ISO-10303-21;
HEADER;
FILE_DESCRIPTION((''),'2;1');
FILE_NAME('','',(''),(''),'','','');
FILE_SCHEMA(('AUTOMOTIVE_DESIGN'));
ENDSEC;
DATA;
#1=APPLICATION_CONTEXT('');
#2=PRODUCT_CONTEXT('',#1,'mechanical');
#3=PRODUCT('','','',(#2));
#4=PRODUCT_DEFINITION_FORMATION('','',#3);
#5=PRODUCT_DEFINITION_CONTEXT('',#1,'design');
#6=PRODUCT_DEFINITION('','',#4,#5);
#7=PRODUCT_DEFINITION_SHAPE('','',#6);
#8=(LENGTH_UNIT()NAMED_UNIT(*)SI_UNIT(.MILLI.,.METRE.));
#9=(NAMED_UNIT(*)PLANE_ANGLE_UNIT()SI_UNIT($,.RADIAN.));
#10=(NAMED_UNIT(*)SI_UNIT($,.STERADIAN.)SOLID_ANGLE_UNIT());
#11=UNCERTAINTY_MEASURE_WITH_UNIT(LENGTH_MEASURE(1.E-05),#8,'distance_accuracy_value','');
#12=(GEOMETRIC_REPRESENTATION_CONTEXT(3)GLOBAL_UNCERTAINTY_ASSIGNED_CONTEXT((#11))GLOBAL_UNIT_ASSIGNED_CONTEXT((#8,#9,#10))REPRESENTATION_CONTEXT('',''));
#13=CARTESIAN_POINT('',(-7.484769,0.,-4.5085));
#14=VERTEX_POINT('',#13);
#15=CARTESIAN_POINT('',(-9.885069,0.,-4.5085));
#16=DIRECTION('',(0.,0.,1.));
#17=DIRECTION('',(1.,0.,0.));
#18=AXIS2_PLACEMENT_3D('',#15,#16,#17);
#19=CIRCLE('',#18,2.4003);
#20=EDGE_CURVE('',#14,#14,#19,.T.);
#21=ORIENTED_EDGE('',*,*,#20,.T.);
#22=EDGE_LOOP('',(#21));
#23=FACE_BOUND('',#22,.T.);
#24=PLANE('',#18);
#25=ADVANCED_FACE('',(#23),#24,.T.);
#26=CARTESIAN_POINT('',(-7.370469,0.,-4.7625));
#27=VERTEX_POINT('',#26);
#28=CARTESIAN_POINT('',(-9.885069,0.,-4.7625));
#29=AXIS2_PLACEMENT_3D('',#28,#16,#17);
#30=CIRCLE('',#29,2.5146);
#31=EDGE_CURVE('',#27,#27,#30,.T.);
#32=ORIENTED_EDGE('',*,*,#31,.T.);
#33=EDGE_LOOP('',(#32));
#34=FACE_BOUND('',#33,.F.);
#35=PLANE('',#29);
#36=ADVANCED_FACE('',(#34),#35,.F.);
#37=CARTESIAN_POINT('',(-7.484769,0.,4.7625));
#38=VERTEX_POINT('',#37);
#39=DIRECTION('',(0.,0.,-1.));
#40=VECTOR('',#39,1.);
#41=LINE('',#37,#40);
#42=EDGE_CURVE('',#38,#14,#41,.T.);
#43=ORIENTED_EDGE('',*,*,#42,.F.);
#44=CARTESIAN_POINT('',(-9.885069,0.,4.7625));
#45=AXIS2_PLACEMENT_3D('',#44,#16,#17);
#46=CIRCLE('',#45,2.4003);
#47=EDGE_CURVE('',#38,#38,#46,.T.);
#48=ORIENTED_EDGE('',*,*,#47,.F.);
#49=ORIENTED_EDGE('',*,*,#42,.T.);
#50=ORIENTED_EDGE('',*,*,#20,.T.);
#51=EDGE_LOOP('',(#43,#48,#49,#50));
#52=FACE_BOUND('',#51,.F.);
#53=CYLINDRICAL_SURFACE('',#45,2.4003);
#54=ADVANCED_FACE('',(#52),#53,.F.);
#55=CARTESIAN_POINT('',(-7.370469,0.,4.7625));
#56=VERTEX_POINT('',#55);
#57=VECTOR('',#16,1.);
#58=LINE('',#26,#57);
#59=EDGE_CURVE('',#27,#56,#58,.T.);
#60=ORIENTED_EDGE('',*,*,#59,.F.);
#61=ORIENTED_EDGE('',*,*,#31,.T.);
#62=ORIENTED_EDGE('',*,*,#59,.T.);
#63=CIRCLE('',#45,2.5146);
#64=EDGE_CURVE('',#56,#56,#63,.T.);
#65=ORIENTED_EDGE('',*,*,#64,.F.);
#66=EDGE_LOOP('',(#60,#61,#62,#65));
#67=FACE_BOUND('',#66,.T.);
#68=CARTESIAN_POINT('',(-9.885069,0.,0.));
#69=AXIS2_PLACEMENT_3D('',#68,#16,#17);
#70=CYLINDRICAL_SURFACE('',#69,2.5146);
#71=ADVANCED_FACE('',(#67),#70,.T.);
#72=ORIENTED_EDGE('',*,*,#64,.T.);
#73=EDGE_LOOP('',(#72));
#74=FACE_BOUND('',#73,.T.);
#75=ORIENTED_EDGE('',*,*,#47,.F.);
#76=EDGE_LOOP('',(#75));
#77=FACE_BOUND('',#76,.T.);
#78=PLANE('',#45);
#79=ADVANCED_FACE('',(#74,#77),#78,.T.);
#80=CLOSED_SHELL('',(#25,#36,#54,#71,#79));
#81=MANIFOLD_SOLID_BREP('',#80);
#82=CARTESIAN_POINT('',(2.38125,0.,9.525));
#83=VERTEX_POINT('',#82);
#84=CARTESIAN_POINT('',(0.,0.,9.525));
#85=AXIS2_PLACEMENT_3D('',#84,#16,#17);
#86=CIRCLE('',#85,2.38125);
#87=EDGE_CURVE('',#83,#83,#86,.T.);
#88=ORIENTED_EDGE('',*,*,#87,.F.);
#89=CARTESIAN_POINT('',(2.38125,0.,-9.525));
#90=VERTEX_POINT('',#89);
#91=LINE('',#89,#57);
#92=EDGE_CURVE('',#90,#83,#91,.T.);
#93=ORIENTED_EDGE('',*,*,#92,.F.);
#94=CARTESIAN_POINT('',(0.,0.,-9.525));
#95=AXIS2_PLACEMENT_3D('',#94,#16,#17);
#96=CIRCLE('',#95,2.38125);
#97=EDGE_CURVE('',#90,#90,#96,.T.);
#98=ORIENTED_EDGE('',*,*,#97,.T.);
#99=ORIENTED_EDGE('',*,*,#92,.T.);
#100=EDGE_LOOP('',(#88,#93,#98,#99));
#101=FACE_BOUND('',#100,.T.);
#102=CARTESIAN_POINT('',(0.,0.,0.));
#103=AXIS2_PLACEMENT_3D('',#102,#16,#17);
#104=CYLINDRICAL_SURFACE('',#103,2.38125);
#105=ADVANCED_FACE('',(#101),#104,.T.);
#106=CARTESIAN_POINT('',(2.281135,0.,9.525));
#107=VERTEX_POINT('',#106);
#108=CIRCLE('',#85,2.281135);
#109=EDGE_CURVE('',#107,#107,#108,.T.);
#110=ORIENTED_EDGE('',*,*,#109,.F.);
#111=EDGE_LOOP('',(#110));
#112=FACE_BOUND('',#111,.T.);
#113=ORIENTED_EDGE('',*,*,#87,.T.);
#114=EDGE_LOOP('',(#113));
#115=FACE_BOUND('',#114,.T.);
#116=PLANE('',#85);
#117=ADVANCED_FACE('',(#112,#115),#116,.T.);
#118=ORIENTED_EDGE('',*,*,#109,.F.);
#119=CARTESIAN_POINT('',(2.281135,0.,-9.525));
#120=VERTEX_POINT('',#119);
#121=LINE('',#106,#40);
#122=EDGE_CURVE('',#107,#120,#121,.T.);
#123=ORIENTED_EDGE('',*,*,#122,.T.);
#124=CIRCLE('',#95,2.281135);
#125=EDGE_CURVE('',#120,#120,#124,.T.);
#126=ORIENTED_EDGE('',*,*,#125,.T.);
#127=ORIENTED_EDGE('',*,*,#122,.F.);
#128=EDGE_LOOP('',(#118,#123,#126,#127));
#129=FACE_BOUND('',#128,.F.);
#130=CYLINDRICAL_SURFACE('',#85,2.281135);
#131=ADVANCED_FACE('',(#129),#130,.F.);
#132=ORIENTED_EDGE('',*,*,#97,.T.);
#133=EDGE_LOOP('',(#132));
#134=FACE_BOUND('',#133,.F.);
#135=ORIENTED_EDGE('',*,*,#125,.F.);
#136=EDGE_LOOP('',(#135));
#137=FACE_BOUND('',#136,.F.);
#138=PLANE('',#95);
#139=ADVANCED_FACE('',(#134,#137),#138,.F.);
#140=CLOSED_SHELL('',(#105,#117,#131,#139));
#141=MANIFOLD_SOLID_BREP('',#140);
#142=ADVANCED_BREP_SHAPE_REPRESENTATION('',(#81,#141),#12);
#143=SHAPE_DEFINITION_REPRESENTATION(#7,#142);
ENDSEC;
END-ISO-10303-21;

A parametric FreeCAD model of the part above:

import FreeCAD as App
import Part
import Sketcher
Q = App.Units.Quantity

doc = App.newDocument("Part")
body = doc.addObject("PartDesign::Body", "Body")

# Sketch on XY plane
sketch1 = body.newObject("Sketcher::SketchObject", "Sketch")
sketch1.AttachmentSupport = (doc.getObject("XY_Plane"), [""])
sketch1.MapMode = "FlatFace"
sketch1.addGeometry(Part.Circle(App.Vector(0, 0, 0), App.Vector(0, 0, 1), 2.4), False)
sketch1.addConstraint(Sketcher.Constraint("Coincident", 0, 3, -1, 1))
sketch1.addConstraint(Sketcher.Constraint("Diameter", 0, Q("0.1875 in")))
pad1 = body.newObject("PartDesign::Pad", "Pad")
pad1.Profile = sketch1
pad1.Length = Q("0.75 in")
pad1.Midplane = True

# Sketch on XY plane
sketch2 = body.newObject("Sketcher::SketchObject", "Sketch001")
sketch2.AttachmentSupport = (doc.getObject("XY_Plane"), [""])
sketch2.MapMode = "FlatFace"
sketch2.AttachmentOffset = App.Placement(App.Vector(0, 0, 0.375 * 25.4), App.Rotation())
sketch2.addGeometry(Part.Circle(App.Vector(0, 0, 0), App.Vector(0, 0, 1), 2.3), False)
sketch2.addConstraint(Sketcher.Constraint("Coincident", 0, 3, -1, 1))
sketch2.addConstraint(Sketcher.Constraint("Diameter", 0, 4.56227))
pocket1 = body.newObject("PartDesign::Pocket", "Pocket")
pocket1.Profile = sketch2
pocket1.Length = Q("0.75 in")
body2 = doc.addObject("PartDesign::Body", "Body001")

# Sketch on XY plane
sketch3 = body2.newObject("Sketcher::SketchObject", "Sketch002")
sketch3.AttachmentSupport = (doc.getObject("XY_Plane001"), [""])
sketch3.MapMode = "FlatFace"
sketch3.addGeometry(Part.Circle(App.Vector(-9.9, 0, 0), App.Vector(0, 0, 1), 2.5), False)
sketch3.addConstraint(Sketcher.Constraint("PointOnObject", 0, 3, -1))
sketch3.addConstraint(Sketcher.Constraint("Diameter", 0, Q("0.198 in")))
sketch3.addConstraint(Sketcher.Constraint("DistanceX", 0, 3, -1, 1, 9.885069))
pad2 = body2.newObject("PartDesign::Pad", "Pad001")
pad2.Profile = sketch3
pad2.Length = Q("0.375 in")
pad2.Midplane = True

# Sketch on XY plane
sketch4 = body2.newObject("Sketcher::SketchObject", "Sketch003")
sketch4.AttachmentSupport = (doc.getObject("XY_Plane001"), [""])
sketch4.MapMode = "FlatFace"
sketch4.AttachmentOffset = App.Placement(App.Vector(0, 0, 0.1875 * 25.4), App.Rotation())
sketch4.addGeometry(Part.Circle(App.Vector(-9.9, 0, 0), App.Vector(0, 0, 1), 2.4), False)
sketch4.addConstraint(Sketcher.Constraint("PointOnObject", 0, 3, -1))
sketch4.addConstraint(Sketcher.Constraint("Diameter", 0, Q("0.189 in")))
sketch4.addConstraint(Sketcher.Constraint("DistanceX", 0, 3, -1, 1, 9.885069))
pocket2 = body2.newObject("PartDesign::Pocket", "Pocket001")
pocket2.Profile = sketch4
pocket2.Length = Q("0.365 in")

doc.recompute()
